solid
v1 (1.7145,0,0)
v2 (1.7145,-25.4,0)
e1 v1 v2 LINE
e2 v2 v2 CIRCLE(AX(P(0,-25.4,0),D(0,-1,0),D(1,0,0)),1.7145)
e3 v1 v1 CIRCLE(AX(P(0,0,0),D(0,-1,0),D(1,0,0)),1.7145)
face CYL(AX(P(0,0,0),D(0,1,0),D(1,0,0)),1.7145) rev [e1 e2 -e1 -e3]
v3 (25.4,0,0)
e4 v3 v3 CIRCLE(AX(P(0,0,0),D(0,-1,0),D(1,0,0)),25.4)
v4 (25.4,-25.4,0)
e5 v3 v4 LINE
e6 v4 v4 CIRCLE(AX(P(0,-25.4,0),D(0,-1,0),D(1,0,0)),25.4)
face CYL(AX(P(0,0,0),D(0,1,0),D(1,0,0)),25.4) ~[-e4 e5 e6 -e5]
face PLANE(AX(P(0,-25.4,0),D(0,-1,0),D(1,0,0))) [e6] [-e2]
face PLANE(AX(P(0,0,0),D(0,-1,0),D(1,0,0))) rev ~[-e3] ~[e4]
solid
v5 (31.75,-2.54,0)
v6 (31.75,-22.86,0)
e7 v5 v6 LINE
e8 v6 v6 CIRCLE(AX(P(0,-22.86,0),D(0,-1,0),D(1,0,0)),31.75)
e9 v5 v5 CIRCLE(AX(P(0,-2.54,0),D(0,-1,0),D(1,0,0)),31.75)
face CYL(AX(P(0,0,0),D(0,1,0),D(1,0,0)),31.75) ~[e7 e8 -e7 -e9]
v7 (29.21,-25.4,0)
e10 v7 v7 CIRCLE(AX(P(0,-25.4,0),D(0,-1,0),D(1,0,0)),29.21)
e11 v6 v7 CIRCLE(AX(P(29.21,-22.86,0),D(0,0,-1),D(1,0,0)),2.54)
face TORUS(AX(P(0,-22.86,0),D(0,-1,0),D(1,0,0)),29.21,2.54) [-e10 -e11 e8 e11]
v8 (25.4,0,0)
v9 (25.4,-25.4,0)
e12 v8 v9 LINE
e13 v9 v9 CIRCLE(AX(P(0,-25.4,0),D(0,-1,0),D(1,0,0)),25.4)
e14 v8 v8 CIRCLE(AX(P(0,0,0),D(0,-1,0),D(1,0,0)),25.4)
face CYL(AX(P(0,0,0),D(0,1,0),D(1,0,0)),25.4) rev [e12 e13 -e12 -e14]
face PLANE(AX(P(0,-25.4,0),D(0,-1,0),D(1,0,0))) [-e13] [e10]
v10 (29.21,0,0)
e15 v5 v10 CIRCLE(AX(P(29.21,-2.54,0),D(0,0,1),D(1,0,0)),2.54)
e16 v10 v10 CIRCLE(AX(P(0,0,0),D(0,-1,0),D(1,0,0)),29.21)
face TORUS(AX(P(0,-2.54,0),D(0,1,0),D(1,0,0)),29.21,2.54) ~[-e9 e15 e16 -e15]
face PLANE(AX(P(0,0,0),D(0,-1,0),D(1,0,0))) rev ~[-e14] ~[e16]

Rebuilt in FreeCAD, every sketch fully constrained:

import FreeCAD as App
import Part
import Sketcher
Q = App.Units.Quantity


def edges_at(feature, points):
    """Names of the edges that pass closest to the given points."""
    edges = feature.Shape.Edges
    near = lambda p: min(range(len(edges)), key=lambda i: edges[i].distToShape(Part.Vertex(*p))[0])
    return sorted({f"Edge{near(p) + 1}" for p in points})

doc = App.newDocument("Part")
params = doc.addObject("Spreadsheet::Sheet", "Params")
for row, (alias, value) in enumerate([
    ("sketch1_diameter", "2 in"),
    ("sketch1_diameter2", "0.135 in"),
    ("pad1_length", "1 in"),
    ("sketch2_diameter", "2 in"),
    ("sketch2_diameter2", "2.5 in"),
    ("pad2_length", "1 in"),
    ("fillet_radius", "0.1 in"),
    ("fillet2_radius", "0.1 in"),
], start=1):
    params.set(f"A{row}", alias)
    params.set(f"B{row}", "=" + value)
    params.setAlias(f"B{row}", alias)

body = doc.addObject("PartDesign::Body", "Body")

# Sketch on XZ plane
sketch1 = body.newObject("Sketcher::SketchObject", "Sketch")
sketch1.AttachmentSupport = (doc.getObject("XZ_Plane"), [""])
sketch1.MapMode = "FlatFace"
sketch1.addGeometry(Part.Circle(App.Vector(0, 0, 0), App.Vector(0, 0, 1), 25.4), False)
sketch1.addGeometry(Part.Circle(App.Vector(0, 0, 0), App.Vector(0, 0, 1), 1.7145), False)
sketch1.addConstraint(Sketcher.Constraint("Coincident", 0, 3, -1, 1))
sketch1.addConstraint(Sketcher.Constraint("Coincident", 1, 3, -1, 1))
sketch1.addConstraint(Sketcher.Constraint("Diameter", 0, Q("2 in")))
sketch1.addConstraint(Sketcher.Constraint("Diameter", 1, Q("0.135 in")))
sketch1.setExpression("Constraints[2]", "Params.sketch1_diameter")
sketch1.setExpression("Constraints[3]", "Params.sketch1_diameter2")
pad1 = body.newObject("PartDesign::Pad", "Pad")
pad1.Profile = sketch1
pad1.setExpression("Length", "Params.pad1_length")
body2 = doc.addObject("PartDesign::Body", "Body001")

# Sketch on XZ plane
sketch2 = body2.newObject("Sketcher::SketchObject", "Sketch001")
sketch2.AttachmentSupport = (doc.getObject("XZ_Plane001"), [""])
sketch2.MapMode = "FlatFace"
sketch2.addGeometry(Part.Circle(App.Vector(0, 0, 0), App.Vector(0, 0, 1), 31.75), False)
sketch2.addGeometry(Part.Circle(App.Vector(0, 0, 0), App.Vector(0, 0, 1), 25.4), False)
sketch2.addConstraint(Sketcher.Constraint("Coincident", 0, 3, -1, 1))
sketch2.addConstraint(Sketcher.Constraint("Coincident", 1, 3, -1, 1))
sketch2.addConstraint(Sketcher.Constraint("Diameter", 1, Q("2 in")))
sketch2.addConstraint(Sketcher.Constraint("Diameter", 0, Q("2.5 in")))
sketch2.setExpression("Constraints[2]", "Params.sketch2_diameter")
sketch2.setExpression("Constraints[3]", "Params.sketch2_diameter2")
pad2 = body2.newObject("PartDesign::Pad", "Pad001")
pad2.Profile = sketch2
pad2.setExpression("Length", "Params.pad2_length")
doc.recompute()

fillet = body2.newObject("PartDesign::Fillet", "Fillet")
fillet.Base = (pad2, edges_at(pad2, [(-31.75, -25.4, 0)]))
fillet.setExpression("Radius", "Params.fillet_radius")
doc.recompute()

fillet2 = body2.newObject("PartDesign::Fillet", "Fillet001")
fillet2.Base = (fillet, edges_at(fillet, [(-31.75, 0, 0)]))
fillet2.setExpression("Radius", "Params.fillet2_radius")

doc.recompute()
